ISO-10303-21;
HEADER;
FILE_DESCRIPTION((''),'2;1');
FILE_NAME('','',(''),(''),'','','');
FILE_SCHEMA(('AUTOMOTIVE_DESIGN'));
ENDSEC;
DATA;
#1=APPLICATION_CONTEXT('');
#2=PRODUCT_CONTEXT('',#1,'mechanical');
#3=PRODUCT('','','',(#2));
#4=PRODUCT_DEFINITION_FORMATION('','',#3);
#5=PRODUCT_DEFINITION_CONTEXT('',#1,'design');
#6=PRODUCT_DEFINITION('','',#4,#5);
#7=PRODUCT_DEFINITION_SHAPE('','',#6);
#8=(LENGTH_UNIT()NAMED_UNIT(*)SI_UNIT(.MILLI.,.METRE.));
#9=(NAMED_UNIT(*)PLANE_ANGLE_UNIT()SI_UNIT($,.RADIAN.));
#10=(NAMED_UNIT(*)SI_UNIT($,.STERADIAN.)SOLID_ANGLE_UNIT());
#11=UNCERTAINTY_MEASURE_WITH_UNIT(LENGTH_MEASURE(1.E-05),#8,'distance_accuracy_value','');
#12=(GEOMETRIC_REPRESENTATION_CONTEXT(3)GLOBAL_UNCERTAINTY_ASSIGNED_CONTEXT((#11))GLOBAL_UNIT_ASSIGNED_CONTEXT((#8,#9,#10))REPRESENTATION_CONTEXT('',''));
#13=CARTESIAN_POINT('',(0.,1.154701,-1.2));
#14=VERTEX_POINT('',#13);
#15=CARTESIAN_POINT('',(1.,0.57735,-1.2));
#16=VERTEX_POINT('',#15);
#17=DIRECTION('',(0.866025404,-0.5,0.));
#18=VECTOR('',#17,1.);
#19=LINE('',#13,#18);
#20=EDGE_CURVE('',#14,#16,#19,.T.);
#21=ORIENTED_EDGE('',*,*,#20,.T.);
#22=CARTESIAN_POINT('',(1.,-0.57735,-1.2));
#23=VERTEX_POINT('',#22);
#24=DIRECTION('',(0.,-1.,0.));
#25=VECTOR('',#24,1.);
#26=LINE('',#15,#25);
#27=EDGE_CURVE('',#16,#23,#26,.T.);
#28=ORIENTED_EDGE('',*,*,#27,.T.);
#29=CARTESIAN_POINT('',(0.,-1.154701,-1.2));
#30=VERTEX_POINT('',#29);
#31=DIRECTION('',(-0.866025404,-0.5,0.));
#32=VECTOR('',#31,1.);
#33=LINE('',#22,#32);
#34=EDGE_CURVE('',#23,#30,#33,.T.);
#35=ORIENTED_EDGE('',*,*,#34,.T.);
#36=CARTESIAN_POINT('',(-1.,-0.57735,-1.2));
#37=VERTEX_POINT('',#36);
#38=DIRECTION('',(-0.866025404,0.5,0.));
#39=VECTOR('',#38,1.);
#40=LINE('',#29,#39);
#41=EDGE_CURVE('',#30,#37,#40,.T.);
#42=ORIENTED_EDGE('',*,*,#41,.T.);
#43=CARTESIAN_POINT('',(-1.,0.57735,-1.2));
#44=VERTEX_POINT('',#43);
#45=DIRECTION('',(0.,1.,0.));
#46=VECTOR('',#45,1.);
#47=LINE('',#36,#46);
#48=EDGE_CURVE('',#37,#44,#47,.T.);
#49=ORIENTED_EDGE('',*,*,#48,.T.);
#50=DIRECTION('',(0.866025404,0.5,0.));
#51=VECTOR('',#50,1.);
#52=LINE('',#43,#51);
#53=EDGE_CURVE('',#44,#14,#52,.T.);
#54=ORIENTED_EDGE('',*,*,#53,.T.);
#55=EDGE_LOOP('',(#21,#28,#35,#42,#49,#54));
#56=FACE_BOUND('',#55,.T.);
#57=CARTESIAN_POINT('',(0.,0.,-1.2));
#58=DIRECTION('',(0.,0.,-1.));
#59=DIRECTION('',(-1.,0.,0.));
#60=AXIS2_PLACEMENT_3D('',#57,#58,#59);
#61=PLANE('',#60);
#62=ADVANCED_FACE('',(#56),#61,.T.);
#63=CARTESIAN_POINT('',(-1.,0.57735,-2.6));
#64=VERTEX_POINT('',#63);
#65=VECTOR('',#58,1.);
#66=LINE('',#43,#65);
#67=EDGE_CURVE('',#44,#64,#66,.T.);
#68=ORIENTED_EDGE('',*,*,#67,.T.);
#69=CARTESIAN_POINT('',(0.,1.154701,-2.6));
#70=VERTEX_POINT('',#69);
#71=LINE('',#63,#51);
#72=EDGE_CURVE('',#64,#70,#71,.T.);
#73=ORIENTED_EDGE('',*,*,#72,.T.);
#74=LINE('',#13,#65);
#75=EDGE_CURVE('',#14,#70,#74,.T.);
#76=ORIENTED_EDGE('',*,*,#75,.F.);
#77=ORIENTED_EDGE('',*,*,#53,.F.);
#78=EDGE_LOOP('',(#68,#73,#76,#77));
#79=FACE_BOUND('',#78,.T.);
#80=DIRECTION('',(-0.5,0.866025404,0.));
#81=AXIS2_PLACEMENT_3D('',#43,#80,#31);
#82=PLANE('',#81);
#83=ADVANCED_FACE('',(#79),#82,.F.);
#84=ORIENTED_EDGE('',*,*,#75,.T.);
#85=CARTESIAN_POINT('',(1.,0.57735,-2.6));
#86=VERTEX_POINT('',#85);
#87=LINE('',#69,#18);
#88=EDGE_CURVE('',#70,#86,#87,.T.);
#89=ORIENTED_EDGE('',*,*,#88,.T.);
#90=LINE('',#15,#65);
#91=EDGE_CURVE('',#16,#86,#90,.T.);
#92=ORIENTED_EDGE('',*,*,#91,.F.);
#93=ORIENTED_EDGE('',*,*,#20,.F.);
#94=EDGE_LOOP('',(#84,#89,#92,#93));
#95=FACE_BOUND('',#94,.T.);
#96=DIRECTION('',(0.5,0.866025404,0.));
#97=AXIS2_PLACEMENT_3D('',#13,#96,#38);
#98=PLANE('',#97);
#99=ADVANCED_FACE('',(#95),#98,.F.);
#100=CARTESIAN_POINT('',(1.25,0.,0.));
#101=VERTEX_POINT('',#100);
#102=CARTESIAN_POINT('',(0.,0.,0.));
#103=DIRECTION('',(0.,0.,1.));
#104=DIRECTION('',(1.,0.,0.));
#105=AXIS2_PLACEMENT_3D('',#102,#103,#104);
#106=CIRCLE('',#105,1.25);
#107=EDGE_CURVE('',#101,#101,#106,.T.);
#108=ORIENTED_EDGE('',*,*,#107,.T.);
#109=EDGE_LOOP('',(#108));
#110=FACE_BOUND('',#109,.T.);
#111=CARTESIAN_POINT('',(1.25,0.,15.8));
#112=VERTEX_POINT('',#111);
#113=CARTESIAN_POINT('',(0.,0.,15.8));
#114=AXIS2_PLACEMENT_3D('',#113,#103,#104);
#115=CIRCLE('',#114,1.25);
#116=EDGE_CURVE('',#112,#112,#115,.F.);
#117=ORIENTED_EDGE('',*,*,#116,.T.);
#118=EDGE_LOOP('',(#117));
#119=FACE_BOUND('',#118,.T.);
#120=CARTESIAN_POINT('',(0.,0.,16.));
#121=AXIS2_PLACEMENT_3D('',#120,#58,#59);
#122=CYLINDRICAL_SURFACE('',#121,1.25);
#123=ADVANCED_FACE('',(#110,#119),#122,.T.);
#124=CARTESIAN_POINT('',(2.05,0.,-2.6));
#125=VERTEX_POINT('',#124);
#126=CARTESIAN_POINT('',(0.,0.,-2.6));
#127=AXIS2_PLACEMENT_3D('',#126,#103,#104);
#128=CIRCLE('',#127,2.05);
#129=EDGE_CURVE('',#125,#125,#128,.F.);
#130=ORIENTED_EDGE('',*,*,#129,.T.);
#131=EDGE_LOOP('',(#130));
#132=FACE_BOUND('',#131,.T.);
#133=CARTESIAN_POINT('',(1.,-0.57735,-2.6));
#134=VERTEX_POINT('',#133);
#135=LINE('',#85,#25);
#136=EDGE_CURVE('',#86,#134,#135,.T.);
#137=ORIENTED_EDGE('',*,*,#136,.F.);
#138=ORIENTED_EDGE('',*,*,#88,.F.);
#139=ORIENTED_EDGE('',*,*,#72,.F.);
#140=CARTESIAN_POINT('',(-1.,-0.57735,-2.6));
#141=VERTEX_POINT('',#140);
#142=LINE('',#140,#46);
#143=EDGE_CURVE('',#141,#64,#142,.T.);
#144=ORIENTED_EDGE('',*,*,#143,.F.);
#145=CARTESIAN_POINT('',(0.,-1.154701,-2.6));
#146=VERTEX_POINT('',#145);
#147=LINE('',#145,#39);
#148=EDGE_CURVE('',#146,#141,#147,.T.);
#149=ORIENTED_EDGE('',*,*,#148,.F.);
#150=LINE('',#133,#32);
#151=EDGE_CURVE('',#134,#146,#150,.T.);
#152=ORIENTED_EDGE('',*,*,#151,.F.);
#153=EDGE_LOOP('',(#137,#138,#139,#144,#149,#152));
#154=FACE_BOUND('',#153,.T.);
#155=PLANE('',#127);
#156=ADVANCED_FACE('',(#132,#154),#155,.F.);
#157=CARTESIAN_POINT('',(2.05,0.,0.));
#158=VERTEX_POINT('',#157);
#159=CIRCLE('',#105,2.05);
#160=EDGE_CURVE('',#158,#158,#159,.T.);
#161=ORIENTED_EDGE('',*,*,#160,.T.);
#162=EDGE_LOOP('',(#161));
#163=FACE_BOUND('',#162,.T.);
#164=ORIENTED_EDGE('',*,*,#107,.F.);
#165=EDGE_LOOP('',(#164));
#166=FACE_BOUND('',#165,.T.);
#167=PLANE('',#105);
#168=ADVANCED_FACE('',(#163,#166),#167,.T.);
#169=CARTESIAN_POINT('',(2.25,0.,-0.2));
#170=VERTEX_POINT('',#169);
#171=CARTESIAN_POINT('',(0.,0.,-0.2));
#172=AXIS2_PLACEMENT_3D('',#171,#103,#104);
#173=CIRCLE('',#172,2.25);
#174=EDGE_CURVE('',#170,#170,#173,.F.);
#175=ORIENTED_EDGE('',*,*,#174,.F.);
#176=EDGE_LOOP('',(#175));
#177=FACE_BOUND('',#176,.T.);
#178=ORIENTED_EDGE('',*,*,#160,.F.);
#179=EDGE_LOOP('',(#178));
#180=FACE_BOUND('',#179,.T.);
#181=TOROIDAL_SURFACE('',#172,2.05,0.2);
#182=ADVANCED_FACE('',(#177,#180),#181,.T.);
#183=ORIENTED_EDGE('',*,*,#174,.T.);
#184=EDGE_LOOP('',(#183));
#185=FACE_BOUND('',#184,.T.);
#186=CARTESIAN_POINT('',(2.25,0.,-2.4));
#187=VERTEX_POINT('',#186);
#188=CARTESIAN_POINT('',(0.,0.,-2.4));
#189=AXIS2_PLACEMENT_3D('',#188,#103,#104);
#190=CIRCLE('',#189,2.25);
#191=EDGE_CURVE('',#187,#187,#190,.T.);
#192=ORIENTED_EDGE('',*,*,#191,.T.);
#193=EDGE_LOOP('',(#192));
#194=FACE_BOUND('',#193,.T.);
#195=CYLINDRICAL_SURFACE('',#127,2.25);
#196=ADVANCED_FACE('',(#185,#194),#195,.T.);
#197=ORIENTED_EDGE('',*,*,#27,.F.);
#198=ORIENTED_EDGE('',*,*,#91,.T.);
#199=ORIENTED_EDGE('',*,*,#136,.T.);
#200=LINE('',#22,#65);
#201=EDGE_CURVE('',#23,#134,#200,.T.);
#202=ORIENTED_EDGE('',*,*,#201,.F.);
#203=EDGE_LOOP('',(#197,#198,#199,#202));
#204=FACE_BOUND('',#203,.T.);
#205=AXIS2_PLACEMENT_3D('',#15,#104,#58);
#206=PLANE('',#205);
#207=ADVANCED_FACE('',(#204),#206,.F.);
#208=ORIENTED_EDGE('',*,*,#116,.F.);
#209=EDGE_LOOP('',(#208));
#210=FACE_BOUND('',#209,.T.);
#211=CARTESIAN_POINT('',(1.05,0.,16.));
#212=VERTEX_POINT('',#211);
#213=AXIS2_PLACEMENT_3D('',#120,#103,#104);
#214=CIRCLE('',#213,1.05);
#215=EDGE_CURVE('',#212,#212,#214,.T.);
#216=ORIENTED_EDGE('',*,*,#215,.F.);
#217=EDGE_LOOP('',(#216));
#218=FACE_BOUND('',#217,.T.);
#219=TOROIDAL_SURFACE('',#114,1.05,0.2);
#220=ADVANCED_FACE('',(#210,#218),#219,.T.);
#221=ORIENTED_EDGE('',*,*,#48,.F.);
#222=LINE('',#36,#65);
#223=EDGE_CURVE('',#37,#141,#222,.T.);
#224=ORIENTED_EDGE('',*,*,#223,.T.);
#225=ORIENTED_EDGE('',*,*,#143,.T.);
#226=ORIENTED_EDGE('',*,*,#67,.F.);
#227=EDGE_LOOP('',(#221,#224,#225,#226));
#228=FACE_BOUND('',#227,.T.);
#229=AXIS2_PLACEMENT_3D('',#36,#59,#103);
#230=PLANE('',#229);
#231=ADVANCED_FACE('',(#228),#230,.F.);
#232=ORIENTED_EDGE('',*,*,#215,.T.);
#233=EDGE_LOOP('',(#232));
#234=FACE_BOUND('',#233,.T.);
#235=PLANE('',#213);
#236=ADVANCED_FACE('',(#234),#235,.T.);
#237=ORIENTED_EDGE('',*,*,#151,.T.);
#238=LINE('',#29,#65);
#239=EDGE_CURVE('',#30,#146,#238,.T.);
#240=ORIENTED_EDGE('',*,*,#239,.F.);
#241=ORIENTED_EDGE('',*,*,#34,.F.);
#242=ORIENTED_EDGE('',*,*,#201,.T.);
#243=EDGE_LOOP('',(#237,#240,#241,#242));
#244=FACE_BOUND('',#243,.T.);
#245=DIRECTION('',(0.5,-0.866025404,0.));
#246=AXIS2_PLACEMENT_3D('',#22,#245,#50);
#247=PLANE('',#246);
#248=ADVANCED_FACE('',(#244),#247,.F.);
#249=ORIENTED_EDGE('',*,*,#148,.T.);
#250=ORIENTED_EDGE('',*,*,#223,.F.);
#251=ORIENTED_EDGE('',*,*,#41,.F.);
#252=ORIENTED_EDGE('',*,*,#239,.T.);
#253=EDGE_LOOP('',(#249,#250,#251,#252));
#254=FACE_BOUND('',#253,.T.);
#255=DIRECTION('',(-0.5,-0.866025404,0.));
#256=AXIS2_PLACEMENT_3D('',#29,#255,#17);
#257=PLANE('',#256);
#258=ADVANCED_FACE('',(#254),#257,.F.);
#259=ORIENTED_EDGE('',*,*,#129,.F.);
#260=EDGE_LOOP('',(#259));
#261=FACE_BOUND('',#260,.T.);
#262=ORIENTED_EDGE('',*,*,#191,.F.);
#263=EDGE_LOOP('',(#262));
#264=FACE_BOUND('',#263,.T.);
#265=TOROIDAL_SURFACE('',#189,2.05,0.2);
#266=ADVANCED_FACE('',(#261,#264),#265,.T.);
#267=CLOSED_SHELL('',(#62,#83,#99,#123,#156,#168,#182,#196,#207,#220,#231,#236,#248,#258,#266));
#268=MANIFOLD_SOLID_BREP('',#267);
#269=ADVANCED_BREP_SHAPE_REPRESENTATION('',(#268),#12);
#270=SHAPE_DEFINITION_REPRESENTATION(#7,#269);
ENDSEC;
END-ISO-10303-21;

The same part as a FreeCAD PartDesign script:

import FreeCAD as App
import Part
import Sketcher
Q = App.Units.Quantity


def edges_at(feature, points):
    """Names of the edges that pass closest to the given points."""
    edges = feature.Shape.Edges
    near = lambda p: min(range(len(edges)), key=lambda i: edges[i].distToShape(Part.Vertex(*p))[0])
    return sorted({f"Edge{near(p) + 1}" for p in points})


def add_polygon(sketch, points):
    """Adds a closed chain of lines whose ends are joined by coincident constraints."""
    first, n = sketch.GeometryCount, len(points)
    for a, b in zip(points, points[1:] + points[:1]):
        sketch.addGeometry(Part.LineSegment(App.Vector(*a, 0), App.Vector(*b, 0)), False)
    for i in range(n):
        sketch.addConstraint(Sketcher.Constraint("Coincident", first + i, 2, first + (i + 1) % n, 1))

doc = App.newDocument("Part")
body = doc.addObject("PartDesign::Body", "Body")

sketch1 = body.newObject("Sketcher::SketchObject", "Sketch")
sketch1.AttachmentSupport = (doc.getObject("XY_Plane"), [""])
sketch1.MapMode = "FlatFace"
sketch1.addGeometry(Part.Circle(App.Vector(0, 0, 0), App.Vector(0, 0, 1), 1.2), False)
sketch1.addConstraint([
    Sketcher.Constraint("Coincident", 0, 3, -1, 1),
    Sketcher.Constraint("Diameter", 0, 2.5),
])
pad1 = body.newObject("PartDesign::Pad", "Pad")
pad1.Profile = sketch1
pad1.Length = 16

sketch2 = body.newObject("Sketcher::SketchObject", "Sketch001")
sketch2.AttachmentSupport = (doc.getObject("XY_Plane"), [""])
sketch2.MapMode = "FlatFace"
sketch2.addGeometry(Part.Circle(App.Vector(0, 0, 0), App.Vector(0, 0, 1), 2.2), False)
sketch2.addConstraint([
    Sketcher.Constraint("Coincident", 0, 3, -1, 1),
    Sketcher.Constraint("Diameter", 0, 4.5),
])
pad2 = body.newObject("PartDesign::Pad", "Pad001")
pad2.Profile = sketch2
pad2.Length = 2.6
pad2.Reversed = True

sketch3 = body.newObject("Sketcher::SketchObject", "Sketch002")
sketch3.AttachmentSupport = (doc.getObject("XY_Plane"), [""])
sketch3.MapMode = "FlatFace"
sketch3.AttachmentOffset = App.Placement(App.Vector(0, 0, -2.6), App.Rotation())
add_polygon(sketch3, [(0, 1.2), (1, 0.6), (1, -0.6), (0, -1.2), (-1, -0.6), (-1, 0.6)])
sketch3.addConstraint([
    Sketcher.Constraint("Vertical", 1),
    Sketcher.Constraint("Vertical", 4),
    Sketcher.Constraint("Symmetric", 0, 2, 3, 2, -1, 1),
    Sketcher.Constraint("Symmetric", 2, 2, 5, 2, -1, 1),
    Sketcher.Constraint("PointOnObject", 2, 2, -2),
    Sketcher.Constraint("Parallel", 2, 5),
    Sketcher.Constraint("Horizontal", 1, 2, 3, 2),
    Sketcher.Constraint("Angle", 0, Q("-30 deg")),
    Sketcher.Constraint("DistanceX", -1, 1, 0, 2, 1.0),
    Sketcher.Constraint("DistanceY", 1, 2, 1, 1, 1.154701),
])
pocket1 = body.newObject("PartDesign::Pocket", "Pocket")
pocket1.Profile = sketch3
pocket1.Length = 1.4
pocket1.Reversed = True
doc.recompute()

fillet = body.newObject("PartDesign::Fillet", "Fillet")
fillet.Base = (pocket1, edges_at(pocket1, [(-1.25, 0, 16), (-2.25, 0, -2.6), (-2.25, 0, 0)]))
fillet.Radius = 0.2

doc.recompute()
